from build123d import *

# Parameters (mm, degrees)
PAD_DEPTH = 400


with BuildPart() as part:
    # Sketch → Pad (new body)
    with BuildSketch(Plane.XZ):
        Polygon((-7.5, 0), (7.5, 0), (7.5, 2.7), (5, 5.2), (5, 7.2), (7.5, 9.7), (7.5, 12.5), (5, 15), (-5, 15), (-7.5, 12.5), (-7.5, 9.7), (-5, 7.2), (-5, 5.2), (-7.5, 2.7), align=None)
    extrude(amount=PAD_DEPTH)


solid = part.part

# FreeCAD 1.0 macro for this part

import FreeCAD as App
import Part
import Sketcher
from FreeCAD import Vector

doc = App.newDocument("Part")
body = doc.addObject("PartDesign::Body", "Body")

# Sketch on XZ plane
sketch1 = body.newObject("Sketcher::SketchObject", "Sketch")
sketch1.AttachmentSupport = (doc.getObject("XZ_Plane"), [""])
sketch1.MapMode = "FlatFace"
sketch1.addGeometry([
    Part.LineSegment(Vector(-7.5, 0, 0), Vector(7.5, 0, 0)),  # 0
    Part.LineSegment(Vector(7.5, 0, 0), Vector(7.5, 2.7, 0)),  # 1
    Part.LineSegment(Vector(7.5, 2.7, 0), Vector(5, 5.2, 0)),  # 2
    Part.LineSegment(Vector(5, 5.2, 0), Vector(5, 7.2, 0)),  # 3
    Part.LineSegment(Vector(5, 7.2, 0), Vector(7.5, 9.7, 0)),  # 4
    Part.LineSegment(Vector(7.5, 9.7, 0), Vector(7.5, 12.5, 0)),  # 5
    Part.LineSegment(Vector(7.5, 12.5, 0), Vector(5, 15, 0)),  # 6
    Part.LineSegment(Vector(5, 15, 0), Vector(-5, 15, 0)),  # 7
    Part.LineSegment(Vector(-5, 15, 0), Vector(-7.5, 12.5, 0)),  # 8
    Part.LineSegment(Vector(-7.5, 12.5, 0), Vector(-7.5, 9.7, 0)),  # 9
    Part.LineSegment(Vector(-7.5, 9.7, 0), Vector(-5, 7.2, 0)),  # 10
    Part.LineSegment(Vector(-5, 7.2, 0), Vector(-5, 5.2, 0)),  # 11
    Part.LineSegment(Vector(-5, 5.2, 0), Vector(-7.5, 2.7, 0)),  # 12
    Part.LineSegment(Vector(-7.5, 2.7, 0), Vector(-7.5, 0, 0)),  # 13
], False)
sketch1.addConstraint([
    Sketcher.Constraint("Coincident", 0, 2, 1, 1),
    Sketcher.Constraint("Coincident", 1, 2, 2, 1),
    Sketcher.Constraint("Coincident", 2, 2, 3, 1),
    Sketcher.Constraint("Coincident", 3, 2, 4, 1),
    Sketcher.Constraint("Coincident", 4, 2, 5, 1),
    Sketcher.Constraint("Coincident", 5, 2, 6, 1),
    Sketcher.Constraint("Coincident", 6, 2, 7, 1),
    Sketcher.Constraint("Coincident", 7, 2, 8, 1),
    Sketcher.Constraint("Coincident", 8, 2, 9, 1),
    Sketcher.Constraint("Coincident", 9, 2, 10, 1),
    Sketcher.Constraint("Coincident", 10, 2, 11, 1),
    Sketcher.Constraint("Coincident", 11, 2, 12, 1),
    Sketcher.Constraint("Coincident", 12, 2, 13, 1),
    Sketcher.Constraint("Coincident", 13, 2, 0, 1),
    Sketcher.Constraint("Horizontal", 0),
    Sketcher.Constraint("Vertical", 1),
    Sketcher.Constraint("Vertical", 3),
    Sketcher.Constraint("Vertical", 5),
    Sketcher.Constraint("Horizontal", 7),
    Sketcher.Constraint("Vertical", 9),
    Sketcher.Constraint("Vertical", 11),
    Sketcher.Constraint("Vertical", 13),
    Sketcher.Constraint("Symmetric", 0, 2, 13, 2, -1, 1),
    Sketcher.Constraint("Symmetric", 5, 2, 8, 2, -2),
    Sketcher.Constraint("Symmetric", 3, 2, 10, 2, -2),
    Sketcher.Constraint("Perpendicular", 2, 4),
    Sketcher.Constraint("Perpendicular", 4, 6),
    Sketcher.Constraint("Perpendicular", 6, 8),
    Sketcher.Constraint("Perpendicular", 8, 10),
    Sketcher.Constraint("Perpendicular", 10, 12),
    Sketcher.Constraint("Horizontal", 4, 2, 9, 2),
    Sketcher.Constraint("Horizontal", 2, 2, 11, 2),
    Sketcher.Constraint("Vertical", 1, 2, 4, 2),
    Sketcher.Constraint("Vertical", 3, 2, 6, 2),
    Sketcher.Constraint("DistanceX", 0, 1, 0, 2, 15.0),
    Sketcher.Constraint("DistanceX", 7, 2, 7, 1, 10.0),
    Sketcher.Constraint("DistanceY", 3, 1, 3, 2, 2.0),
    Sketcher.Constraint("DistanceY", 1, 1, 1, 2, 2.7),
    Sketcher.Constraint("DistanceY", 5, 1, 5, 2, 2.8),
])
pad1 = body.newObject("PartDesign::Pad", "Pad")
pad1.Profile = sketch1
pad1.Length = 400

doc.recompute()
